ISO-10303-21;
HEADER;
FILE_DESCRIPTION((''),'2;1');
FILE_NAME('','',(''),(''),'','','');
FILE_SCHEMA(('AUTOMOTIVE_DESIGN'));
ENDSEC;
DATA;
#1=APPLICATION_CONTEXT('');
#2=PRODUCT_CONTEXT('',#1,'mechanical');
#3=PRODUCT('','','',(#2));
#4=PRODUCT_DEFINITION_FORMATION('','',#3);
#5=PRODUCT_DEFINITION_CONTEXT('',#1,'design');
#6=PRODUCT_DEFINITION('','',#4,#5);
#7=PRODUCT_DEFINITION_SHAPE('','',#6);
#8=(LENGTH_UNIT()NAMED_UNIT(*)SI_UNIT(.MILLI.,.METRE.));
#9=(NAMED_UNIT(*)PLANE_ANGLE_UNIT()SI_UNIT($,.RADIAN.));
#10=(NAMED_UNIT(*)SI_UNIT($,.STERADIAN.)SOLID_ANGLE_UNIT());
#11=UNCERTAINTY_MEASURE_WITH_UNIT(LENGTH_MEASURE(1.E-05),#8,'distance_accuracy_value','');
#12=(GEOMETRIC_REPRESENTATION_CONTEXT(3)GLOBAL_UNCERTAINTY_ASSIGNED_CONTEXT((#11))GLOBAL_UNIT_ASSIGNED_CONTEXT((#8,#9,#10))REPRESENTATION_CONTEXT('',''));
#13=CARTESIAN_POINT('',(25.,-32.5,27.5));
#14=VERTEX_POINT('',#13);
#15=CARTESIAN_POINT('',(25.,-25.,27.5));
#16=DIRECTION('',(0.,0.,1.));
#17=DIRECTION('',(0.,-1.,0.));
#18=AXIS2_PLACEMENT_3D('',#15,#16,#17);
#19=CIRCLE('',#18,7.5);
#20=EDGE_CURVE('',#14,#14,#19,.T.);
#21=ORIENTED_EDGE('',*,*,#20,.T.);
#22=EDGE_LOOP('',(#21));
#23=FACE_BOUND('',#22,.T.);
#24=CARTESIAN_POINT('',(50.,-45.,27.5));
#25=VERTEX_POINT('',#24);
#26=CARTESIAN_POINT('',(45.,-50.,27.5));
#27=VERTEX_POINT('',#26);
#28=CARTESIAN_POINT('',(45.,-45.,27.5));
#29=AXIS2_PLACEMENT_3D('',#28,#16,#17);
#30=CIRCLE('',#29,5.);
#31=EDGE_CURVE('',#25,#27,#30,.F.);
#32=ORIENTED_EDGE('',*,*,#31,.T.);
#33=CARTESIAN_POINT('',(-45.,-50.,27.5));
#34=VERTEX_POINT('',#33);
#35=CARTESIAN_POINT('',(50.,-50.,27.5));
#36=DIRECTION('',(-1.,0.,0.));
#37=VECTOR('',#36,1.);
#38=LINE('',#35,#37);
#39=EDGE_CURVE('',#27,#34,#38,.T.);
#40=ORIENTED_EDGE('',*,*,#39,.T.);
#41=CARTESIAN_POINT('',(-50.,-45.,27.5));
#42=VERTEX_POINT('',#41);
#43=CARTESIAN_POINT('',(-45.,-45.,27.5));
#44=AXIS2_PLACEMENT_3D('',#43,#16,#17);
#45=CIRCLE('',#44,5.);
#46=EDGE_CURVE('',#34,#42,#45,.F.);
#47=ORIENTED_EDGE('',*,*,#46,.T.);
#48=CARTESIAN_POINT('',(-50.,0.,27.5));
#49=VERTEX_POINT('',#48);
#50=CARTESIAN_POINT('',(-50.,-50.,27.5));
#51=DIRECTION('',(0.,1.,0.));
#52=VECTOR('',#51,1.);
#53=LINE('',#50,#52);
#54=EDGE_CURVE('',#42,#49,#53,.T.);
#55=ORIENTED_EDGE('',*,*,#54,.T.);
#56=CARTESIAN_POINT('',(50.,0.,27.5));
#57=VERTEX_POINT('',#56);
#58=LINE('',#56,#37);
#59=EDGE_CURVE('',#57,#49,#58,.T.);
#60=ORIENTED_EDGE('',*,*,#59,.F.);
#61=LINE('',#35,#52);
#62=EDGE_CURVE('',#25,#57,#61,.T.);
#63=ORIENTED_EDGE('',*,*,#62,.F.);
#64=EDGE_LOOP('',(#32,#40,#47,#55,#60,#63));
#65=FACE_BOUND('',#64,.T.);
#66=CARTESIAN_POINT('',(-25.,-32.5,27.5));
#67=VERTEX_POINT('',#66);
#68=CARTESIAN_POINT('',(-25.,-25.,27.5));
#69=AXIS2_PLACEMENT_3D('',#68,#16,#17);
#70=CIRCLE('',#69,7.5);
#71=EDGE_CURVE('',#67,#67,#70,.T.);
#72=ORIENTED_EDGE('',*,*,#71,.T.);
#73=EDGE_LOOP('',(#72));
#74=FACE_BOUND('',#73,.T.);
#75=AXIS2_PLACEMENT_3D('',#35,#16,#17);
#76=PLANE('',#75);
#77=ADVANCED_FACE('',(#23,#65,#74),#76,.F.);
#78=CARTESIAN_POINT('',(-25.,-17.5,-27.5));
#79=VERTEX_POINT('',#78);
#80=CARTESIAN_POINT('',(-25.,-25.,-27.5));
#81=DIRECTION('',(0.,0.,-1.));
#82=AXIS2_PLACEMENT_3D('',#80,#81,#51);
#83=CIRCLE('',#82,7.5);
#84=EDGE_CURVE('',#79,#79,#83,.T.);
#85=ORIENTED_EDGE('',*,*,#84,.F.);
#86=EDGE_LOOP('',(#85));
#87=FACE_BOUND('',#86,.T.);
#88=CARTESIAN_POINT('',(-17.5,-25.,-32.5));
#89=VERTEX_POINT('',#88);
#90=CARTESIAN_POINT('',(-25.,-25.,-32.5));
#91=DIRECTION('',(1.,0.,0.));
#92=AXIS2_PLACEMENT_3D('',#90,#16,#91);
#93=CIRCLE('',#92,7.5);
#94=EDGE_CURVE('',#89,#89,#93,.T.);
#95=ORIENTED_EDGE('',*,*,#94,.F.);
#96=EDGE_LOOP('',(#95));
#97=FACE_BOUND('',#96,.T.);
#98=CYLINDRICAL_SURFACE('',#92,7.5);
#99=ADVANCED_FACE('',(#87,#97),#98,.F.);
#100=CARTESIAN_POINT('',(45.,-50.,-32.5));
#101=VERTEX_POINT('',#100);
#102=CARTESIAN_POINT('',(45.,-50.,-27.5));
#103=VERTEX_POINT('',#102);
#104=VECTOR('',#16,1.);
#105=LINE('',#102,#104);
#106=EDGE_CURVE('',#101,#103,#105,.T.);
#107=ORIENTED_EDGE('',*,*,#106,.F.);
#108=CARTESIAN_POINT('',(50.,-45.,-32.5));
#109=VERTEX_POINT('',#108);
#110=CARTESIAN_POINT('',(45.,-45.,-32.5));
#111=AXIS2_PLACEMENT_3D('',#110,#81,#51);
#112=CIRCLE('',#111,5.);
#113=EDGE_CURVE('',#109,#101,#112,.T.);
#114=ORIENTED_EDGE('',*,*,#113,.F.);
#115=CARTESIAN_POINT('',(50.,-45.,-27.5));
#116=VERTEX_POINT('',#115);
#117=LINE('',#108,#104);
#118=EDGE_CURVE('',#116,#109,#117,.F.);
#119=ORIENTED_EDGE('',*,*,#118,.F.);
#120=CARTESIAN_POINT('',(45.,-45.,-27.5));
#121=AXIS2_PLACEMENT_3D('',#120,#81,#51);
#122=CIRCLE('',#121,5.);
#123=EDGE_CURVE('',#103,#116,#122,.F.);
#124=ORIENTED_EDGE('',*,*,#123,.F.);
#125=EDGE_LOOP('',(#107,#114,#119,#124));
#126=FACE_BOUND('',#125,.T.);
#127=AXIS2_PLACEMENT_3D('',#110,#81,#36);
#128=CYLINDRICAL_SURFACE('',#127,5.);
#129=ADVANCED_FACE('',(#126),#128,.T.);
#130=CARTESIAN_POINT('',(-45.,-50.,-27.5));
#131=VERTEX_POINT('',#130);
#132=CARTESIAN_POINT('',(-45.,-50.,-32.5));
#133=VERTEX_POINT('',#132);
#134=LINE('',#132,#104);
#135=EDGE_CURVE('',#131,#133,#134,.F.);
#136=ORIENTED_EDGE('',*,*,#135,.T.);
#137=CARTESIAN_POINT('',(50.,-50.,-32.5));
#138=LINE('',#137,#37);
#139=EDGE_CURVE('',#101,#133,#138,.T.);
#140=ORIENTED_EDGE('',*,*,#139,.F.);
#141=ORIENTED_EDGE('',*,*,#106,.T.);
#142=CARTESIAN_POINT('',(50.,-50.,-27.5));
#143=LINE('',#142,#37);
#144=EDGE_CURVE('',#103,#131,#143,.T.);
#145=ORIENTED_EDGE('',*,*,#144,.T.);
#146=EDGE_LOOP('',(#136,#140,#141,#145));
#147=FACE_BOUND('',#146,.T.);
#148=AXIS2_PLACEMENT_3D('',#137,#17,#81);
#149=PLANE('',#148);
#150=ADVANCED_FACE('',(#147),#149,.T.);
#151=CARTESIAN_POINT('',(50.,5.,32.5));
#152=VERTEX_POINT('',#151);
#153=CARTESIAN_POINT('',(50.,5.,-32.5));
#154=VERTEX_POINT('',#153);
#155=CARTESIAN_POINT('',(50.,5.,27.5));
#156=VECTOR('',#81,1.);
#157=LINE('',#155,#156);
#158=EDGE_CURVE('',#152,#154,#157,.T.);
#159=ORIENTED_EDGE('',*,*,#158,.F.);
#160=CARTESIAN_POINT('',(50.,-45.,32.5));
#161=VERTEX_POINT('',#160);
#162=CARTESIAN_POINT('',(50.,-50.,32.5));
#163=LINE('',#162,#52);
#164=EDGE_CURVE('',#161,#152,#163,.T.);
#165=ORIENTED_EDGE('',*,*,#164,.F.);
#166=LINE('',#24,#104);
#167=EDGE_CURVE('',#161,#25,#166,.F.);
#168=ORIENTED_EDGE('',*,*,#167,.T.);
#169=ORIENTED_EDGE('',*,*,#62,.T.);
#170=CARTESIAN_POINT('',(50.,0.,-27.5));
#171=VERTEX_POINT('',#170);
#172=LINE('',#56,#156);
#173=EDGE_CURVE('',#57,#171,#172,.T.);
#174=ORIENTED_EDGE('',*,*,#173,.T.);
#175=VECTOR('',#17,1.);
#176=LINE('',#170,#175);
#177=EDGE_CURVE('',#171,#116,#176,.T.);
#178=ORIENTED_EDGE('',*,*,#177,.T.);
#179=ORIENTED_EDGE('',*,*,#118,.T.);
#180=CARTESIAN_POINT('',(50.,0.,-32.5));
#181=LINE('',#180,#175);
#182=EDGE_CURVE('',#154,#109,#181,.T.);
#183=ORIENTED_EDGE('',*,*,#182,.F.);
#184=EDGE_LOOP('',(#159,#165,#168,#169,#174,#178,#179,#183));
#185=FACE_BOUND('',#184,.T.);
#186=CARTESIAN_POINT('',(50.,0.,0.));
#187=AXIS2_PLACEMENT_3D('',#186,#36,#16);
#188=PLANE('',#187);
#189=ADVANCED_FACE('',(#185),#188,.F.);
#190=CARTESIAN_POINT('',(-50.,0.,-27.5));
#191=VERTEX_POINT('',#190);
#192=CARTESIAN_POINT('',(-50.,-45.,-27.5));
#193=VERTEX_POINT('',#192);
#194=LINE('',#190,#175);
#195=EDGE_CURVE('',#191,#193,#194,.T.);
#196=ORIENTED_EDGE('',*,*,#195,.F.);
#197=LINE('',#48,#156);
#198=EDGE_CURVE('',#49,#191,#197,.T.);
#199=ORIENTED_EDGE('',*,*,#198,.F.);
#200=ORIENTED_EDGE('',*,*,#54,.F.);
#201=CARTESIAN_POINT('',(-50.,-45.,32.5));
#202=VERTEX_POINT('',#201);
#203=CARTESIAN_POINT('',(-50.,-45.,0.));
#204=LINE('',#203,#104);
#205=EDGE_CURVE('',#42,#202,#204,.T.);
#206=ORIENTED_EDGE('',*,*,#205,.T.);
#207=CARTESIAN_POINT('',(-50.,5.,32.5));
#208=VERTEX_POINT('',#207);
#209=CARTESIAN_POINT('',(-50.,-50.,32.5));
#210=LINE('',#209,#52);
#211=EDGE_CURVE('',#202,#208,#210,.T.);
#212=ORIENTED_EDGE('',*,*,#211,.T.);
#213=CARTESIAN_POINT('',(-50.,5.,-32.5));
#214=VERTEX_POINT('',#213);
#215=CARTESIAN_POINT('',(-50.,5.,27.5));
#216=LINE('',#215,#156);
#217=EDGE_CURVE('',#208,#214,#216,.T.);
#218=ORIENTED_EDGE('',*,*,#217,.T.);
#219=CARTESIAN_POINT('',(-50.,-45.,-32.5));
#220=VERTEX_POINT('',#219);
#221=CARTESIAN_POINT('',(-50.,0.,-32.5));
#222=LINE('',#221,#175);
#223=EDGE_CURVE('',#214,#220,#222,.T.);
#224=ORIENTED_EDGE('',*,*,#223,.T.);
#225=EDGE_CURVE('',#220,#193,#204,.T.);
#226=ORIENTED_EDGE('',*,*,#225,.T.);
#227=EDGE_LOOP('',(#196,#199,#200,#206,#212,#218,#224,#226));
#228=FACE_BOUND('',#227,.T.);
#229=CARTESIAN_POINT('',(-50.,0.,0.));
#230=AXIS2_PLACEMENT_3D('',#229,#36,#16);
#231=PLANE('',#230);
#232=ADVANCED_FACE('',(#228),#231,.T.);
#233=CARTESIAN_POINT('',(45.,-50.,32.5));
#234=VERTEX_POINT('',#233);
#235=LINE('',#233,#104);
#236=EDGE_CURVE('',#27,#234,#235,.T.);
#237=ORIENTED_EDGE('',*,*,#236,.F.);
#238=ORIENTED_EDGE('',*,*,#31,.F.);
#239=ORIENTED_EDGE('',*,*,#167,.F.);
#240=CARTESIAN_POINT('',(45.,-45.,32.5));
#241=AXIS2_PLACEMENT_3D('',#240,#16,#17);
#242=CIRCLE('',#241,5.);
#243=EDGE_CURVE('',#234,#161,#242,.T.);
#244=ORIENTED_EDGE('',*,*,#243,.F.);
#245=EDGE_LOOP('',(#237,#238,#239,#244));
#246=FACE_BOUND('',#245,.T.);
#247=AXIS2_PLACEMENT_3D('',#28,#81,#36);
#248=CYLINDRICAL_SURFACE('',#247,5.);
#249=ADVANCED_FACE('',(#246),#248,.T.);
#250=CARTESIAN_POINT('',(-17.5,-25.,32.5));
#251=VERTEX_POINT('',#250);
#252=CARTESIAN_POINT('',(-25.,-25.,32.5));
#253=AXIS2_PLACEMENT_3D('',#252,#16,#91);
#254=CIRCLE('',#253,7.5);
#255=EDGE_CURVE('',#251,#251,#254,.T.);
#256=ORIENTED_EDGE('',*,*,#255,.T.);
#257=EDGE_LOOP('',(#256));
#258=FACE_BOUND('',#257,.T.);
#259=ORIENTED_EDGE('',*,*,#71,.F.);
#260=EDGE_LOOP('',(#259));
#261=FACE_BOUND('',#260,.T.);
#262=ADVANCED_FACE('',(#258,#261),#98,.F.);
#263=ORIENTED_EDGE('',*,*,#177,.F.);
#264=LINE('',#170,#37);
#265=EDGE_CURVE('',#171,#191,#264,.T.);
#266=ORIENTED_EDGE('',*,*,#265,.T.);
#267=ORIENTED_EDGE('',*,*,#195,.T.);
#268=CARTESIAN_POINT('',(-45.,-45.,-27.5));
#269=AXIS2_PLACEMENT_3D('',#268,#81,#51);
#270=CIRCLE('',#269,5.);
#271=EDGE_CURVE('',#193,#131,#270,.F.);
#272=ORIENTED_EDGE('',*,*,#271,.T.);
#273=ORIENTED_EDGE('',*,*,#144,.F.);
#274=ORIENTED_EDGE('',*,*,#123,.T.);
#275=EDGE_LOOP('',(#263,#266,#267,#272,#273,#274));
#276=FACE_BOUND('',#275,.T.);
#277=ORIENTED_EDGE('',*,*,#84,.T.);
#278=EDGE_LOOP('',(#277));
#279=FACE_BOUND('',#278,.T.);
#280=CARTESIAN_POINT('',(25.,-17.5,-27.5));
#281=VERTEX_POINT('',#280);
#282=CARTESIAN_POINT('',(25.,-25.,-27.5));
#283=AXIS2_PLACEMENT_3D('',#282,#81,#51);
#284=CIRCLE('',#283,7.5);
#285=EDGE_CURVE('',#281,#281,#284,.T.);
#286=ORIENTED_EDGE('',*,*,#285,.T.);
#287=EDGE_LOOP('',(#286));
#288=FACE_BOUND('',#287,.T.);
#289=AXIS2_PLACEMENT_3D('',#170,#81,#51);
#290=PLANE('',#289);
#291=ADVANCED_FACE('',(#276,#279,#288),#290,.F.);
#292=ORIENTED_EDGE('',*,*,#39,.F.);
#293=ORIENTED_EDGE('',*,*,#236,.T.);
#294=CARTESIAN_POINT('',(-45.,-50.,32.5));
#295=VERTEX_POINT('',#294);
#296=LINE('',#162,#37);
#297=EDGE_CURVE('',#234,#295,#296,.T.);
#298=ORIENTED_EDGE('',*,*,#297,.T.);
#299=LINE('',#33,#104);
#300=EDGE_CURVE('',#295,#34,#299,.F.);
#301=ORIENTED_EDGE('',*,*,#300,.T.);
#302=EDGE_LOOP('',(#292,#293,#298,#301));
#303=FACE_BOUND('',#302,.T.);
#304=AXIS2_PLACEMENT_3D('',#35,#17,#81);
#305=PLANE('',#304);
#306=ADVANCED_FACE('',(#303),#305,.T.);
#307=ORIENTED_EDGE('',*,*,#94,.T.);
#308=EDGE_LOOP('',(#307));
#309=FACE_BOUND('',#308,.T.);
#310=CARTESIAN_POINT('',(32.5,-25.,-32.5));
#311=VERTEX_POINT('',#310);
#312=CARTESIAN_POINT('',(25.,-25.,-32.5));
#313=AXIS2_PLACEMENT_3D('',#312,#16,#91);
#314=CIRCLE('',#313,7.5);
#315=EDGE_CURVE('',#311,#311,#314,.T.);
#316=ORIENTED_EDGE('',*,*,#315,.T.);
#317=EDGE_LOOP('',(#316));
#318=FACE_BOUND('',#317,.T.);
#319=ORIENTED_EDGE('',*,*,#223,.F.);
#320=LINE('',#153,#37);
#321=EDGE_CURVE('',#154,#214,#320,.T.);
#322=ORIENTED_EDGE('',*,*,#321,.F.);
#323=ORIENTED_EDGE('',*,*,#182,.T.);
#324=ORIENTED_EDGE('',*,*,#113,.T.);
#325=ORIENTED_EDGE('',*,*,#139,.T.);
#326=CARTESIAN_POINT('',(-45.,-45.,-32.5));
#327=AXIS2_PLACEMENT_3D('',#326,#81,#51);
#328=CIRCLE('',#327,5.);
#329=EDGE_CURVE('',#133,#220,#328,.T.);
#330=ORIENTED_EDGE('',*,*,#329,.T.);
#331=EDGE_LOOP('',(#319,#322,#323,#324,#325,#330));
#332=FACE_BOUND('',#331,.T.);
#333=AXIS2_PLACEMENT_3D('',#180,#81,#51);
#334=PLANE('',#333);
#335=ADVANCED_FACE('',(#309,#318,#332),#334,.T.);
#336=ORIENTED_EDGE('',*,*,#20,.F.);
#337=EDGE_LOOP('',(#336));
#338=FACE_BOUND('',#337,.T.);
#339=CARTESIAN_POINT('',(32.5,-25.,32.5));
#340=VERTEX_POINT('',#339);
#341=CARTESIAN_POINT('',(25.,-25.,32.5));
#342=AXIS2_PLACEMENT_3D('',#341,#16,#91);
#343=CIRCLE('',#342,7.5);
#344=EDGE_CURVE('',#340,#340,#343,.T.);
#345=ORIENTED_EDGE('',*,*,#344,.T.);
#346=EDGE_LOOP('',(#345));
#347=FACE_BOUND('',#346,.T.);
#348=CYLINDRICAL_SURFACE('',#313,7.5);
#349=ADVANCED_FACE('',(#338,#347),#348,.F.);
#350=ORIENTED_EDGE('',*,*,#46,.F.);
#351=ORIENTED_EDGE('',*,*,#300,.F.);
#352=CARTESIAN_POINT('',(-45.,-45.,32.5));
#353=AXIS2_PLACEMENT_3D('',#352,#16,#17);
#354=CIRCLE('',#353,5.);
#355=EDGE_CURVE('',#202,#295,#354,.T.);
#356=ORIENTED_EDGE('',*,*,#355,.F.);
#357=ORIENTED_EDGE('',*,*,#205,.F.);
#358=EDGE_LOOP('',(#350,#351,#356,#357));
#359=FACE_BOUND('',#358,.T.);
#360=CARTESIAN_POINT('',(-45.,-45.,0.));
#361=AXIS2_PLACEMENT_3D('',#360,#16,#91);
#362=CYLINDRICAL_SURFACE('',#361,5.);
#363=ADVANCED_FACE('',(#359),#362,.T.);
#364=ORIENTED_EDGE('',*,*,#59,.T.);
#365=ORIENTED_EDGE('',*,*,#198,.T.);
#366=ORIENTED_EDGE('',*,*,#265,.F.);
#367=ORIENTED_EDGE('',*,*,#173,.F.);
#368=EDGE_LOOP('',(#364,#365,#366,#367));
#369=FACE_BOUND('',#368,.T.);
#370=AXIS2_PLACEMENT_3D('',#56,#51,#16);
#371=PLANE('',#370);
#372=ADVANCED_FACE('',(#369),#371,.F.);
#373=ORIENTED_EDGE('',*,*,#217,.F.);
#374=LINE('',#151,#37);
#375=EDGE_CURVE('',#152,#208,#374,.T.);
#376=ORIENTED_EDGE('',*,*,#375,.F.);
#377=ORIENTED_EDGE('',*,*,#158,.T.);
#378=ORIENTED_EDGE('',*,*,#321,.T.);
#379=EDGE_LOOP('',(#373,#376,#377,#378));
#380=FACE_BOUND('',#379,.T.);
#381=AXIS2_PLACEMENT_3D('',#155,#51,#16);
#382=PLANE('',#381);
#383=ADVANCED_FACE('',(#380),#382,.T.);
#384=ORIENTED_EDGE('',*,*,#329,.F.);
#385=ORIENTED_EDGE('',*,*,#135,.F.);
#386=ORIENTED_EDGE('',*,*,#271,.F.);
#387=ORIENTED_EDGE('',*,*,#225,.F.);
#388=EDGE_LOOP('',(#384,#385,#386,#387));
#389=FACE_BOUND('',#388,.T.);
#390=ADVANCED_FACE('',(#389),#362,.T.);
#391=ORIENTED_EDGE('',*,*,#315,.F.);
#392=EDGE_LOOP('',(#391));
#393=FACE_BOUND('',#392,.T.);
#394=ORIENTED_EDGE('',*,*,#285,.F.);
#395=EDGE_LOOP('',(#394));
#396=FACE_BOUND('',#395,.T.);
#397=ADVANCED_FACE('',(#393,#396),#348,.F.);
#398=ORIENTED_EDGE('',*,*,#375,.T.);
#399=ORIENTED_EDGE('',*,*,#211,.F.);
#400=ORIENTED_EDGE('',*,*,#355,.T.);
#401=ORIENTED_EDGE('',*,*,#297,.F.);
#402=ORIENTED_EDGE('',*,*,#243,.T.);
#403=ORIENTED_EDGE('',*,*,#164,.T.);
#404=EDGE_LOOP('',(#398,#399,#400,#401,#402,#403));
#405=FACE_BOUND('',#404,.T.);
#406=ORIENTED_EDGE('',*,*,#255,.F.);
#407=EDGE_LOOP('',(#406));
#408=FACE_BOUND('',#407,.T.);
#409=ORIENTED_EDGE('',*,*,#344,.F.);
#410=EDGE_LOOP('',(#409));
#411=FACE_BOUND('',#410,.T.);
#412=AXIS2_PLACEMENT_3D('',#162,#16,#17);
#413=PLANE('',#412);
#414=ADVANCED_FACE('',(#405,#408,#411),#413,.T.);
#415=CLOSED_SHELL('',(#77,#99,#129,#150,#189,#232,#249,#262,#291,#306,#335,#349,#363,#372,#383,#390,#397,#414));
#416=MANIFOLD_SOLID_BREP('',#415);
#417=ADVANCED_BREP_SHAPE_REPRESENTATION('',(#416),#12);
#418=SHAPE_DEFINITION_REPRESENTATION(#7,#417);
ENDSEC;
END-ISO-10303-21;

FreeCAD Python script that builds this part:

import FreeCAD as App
import Part
import Sketcher
from FreeCAD import Vector


def edges_at(feature, points):
    """Names of the edges that pass closest to the given points."""
    edges = feature.Shape.Edges
    near = lambda p: min(range(len(edges)), key=lambda i: edges[i].distToShape(Part.Vertex(*p))[0])
    return sorted({f"Edge{near(p) + 1}" for p in points})


def add_polygon(sketch, points):
    """Adds a closed chain of lines whose ends are joined by coincident constraints."""
    first, n = sketch.GeometryCount, len(points)
    for a, b in zip(points, points[1:] + points[:1]):
        sketch.addGeometry(Part.LineSegment(App.Vector(*a, 0), App.Vector(*b, 0)), False)
    for i in range(n):
        sketch.addConstraint(Sketcher.Constraint("Coincident", first + i, 2, first + (i + 1) % n, 1))

doc = App.newDocument("Part")
params = doc.addObject("Spreadsheet::Sheet", "Params")
for row, (alias, value) in enumerate([
    ("sketch1_width", "50 mm"),
    ("sketch1_width2", "55 mm"),
    ("sketch1_height", "5 mm"),
    ("pad1_length", "100 mm"),
    ("sketch2_diameter", "15 mm"),
    ("fillet_radius", "5 mm"),
], start=1):
    params.set(f"A{row}", alias)
    params.set(f"B{row}", "=" + value)
    params.setAlias(f"B{row}", alias)

body = doc.addObject("PartDesign::Body", "Body")

sketch1 = body.newObject("Sketcher::SketchObject", "Sketch")
sketch1.AttachmentSupport = (doc.getObject("YZ_Plane"), [""])
sketch1.MapMode = "FlatFace"
add_polygon(sketch1, [(-50, 28), (0, 28), (0, -28), (-50, -28), (-50, -32), (5, -32), (5, 32), (-50, 32)])
sketch1.addConstraint(Sketcher.Constraint("Horizontal", 0))
sketch1.addConstraint(Sketcher.Constraint("Vertical", 1))
sketch1.addConstraint(Sketcher.Constraint("Horizontal", 2))
sketch1.addConstraint(Sketcher.Constraint("Vertical", 3))
sketch1.addConstraint(Sketcher.Constraint("Horizontal", 4))
sketch1.addConstraint(Sketcher.Constraint("Vertical", 5))
sketch1.addConstraint(Sketcher.Constraint("Horizontal", 6))
sketch1.addConstraint(Sketcher.Constraint("Vertical", 7))
sketch1.addConstraint(Sketcher.Constraint("Symmetric", 0, 2, 1, 2, -1, 1))
sketch1.addConstraint(Sketcher.Constraint("Symmetric", 3, 2, 6, 2, -1))
sketch1.addConstraint(Sketcher.Constraint("Equal", 6, 1))
sketch1.addConstraint(Sketcher.Constraint("DistanceX", 0, 1, 0, 2, 50.0))
sketch1.addConstraint(Sketcher.Constraint("DistanceX", 4, 1, 4, 2, 55.0))
sketch1.addConstraint(Sketcher.Constraint("DistanceY", 3, 2, 3, 1, 5.0))
sketch1.setExpression("Constraints[19]", "Params.sketch1_width")
sketch1.setExpression("Constraints[20]", "Params.sketch1_width2")
sketch1.setExpression("Constraints[21]", "Params.sketch1_height")
pad1 = body.newObject("PartDesign::Pad", "Pad")
pad1.Profile = sketch1
pad1.setExpression("Length", "Params.pad1_length")
pad1.Midplane = True

sketch2 = body.newObject("Sketcher::SketchObject", "Sketch001")
sketch2.AttachmentSupport = (doc.getObject("XY_Plane"), [""])
sketch2.MapMode = "FlatFace"
sketch2.addGeometry(Part.Circle(Vector(-25, -25, 0), Vector(0, 0, 1), 8), False)
sketch2.addGeometry(Part.Circle(Vector(25, -25, 0), Vector(0, 0, 1), 8), False)
sketch2.addConstraint(Sketcher.Constraint("Equal", 0, 1))
sketch2.addConstraint(Sketcher.Constraint("Symmetric", 0, 3, 1, 3, -2))
sketch2.addConstraint(Sketcher.Constraint("Diameter", 0, 15.0))
sketch2.addConstraint(Sketcher.Constraint("DistanceX", 0, 3, -1, 1, 25.0))
sketch2.addConstraint(Sketcher.Constraint("DistanceY", 0, 3, -1, 1, 25.0))
sketch2.setExpression("Constraints[2]", "Params.sketch2_diameter")
pocket1 = body.newObject("PartDesign::Pocket", "Pocket")
pocket1.Profile = sketch2
pocket1.Type = "ThroughAll"
pocket1.Midplane = True
doc.recompute()

fillet = body.newObject("PartDesign::Fillet", "Fillet")
fillet.Base = (pocket1, edges_at(pocket1, [
    (50, -50, 30),
    (50, -50, -30),
    (-50, -50, 30),
    (-50, -50, -30),
]))
fillet.setExpression("Radius", "Params.fillet_radius")

doc.recompute()
